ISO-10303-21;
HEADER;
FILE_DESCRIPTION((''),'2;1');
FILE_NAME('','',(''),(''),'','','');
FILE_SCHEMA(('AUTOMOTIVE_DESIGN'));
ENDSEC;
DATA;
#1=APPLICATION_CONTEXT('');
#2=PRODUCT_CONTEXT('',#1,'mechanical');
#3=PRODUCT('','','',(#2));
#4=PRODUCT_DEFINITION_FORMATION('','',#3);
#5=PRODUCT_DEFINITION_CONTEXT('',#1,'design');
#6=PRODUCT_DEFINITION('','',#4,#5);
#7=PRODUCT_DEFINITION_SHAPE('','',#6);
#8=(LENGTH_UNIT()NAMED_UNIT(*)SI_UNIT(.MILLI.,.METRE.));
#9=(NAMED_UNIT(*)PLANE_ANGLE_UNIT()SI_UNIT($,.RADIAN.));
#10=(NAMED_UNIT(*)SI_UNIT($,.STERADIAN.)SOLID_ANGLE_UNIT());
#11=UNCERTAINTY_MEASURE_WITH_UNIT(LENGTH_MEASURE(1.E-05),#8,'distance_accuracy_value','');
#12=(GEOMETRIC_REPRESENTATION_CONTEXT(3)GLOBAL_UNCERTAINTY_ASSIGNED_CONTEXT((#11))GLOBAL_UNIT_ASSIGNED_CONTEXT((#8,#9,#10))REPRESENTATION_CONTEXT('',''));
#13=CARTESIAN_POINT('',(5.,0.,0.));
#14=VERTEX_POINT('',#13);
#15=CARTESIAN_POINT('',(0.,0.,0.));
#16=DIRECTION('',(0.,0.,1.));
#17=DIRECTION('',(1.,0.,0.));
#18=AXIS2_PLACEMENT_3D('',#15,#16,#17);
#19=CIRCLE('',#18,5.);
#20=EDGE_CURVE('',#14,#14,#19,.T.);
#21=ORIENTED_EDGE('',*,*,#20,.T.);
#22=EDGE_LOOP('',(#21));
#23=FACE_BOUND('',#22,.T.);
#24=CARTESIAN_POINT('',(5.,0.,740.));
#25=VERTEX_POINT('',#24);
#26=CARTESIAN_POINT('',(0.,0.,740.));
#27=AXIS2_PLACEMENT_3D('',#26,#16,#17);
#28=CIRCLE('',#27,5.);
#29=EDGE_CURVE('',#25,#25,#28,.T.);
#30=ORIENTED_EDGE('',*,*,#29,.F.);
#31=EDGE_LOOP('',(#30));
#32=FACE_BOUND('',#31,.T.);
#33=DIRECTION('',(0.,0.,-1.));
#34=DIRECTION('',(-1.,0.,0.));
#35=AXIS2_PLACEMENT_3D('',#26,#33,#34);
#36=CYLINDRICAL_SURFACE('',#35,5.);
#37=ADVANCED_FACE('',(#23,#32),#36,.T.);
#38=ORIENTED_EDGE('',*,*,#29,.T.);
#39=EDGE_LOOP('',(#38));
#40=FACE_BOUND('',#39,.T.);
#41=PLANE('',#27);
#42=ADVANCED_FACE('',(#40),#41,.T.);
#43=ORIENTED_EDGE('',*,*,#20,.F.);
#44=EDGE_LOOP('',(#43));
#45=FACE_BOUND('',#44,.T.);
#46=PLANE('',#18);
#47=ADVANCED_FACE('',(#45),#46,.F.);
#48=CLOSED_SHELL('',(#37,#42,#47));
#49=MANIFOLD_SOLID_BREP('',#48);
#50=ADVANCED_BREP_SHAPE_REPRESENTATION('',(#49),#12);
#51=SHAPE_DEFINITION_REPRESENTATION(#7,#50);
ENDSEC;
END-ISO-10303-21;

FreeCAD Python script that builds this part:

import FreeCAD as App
import Part
import Sketcher

V = App.Vector
Q = App.Units.Quantity

doc = App.newDocument("Part")
params = doc.addObject("Spreadsheet::Sheet", "Params")
for row, (alias, value) in enumerate([
    ("sketch1_diameter", "10 mm"),
    ("pad1_length", "740 mm"),
], start=1):
    params.set(f"A{row}", alias)
    params.set(f"B{row}", "=" + value)
    params.setAlias(f"B{row}", alias)

body = doc.addObject("PartDesign::Body", "Body")

# Sketch on XY plane
sketch1 = doc.addObject("Sketcher::SketchObject", "Sketch")
body.addObject(sketch1)
sketch1.AttachmentSupport = (doc.XY_Plane, [""])
sketch1.MapMode = "FlatFace"
sketch1.addGeometry(Part.Circle(V(0, 0, 0), V(0, 0, 1), 5), False)
sketch1.addConstraint(Sketcher.Constraint("Coincident", 0, 3, -1, 1))
sketch1.addConstraint(Sketcher.Constraint("Diameter", 0, Q("10 mm")))
sketch1.setExpression("Constraints[1]", "Params.sketch1_diameter")
pad1 = doc.addObject("PartDesign::Pad", "Pad")
body.addObject(pad1)
pad1.Profile = sketch1
pad1.setExpression("Length", "Params.pad1_length")

doc.recompute()
